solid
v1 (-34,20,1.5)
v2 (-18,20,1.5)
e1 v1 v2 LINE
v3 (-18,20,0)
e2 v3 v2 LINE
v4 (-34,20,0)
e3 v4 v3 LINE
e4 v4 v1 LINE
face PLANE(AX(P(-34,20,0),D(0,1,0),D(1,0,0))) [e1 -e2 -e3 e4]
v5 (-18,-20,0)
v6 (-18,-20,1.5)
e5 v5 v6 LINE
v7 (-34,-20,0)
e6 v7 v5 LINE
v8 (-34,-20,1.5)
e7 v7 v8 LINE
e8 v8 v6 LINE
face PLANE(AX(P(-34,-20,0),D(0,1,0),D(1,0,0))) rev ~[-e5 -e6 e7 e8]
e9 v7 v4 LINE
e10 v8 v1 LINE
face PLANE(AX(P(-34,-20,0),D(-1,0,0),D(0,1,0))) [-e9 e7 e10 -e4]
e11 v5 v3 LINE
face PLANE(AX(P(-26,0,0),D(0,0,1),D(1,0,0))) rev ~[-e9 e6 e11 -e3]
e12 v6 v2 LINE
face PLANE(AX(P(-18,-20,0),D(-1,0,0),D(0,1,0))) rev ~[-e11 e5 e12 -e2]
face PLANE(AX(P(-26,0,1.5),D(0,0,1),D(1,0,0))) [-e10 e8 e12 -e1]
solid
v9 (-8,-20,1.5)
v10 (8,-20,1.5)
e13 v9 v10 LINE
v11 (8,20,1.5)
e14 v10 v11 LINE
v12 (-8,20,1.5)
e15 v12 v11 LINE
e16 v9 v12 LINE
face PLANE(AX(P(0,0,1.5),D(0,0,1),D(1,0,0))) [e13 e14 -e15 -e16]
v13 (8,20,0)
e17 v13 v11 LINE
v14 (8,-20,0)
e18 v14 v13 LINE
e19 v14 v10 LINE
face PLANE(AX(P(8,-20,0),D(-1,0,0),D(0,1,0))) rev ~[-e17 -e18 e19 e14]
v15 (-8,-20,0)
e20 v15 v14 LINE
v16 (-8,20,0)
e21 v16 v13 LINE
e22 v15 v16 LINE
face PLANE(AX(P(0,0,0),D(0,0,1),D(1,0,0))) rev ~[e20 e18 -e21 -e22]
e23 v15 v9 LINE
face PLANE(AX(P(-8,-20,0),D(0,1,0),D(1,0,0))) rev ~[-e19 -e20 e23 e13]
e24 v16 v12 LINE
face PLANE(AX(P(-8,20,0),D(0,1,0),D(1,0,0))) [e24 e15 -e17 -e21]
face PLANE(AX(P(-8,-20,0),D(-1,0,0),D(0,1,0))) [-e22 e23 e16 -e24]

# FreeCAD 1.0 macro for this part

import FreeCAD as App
import Part
import Sketcher

doc = App.newDocument("Part")
params = doc.addObject("Spreadsheet::Sheet", "Params")
for row, (alias, value) in enumerate([
    ("sketch1_width", "16 mm"),
    ("sketch1_height", "40 mm"),
    ("pad1_length", "1.5 mm"),
    ("sketch2_width", "16 mm"),
    ("sketch2_height", "40 mm"),
    ("pad2_length", "1.5 mm"),
    ("sketch3_width", "16 mm"),
    ("sketch3_height", "40 mm"),
    ("pad3_length", "1.5 mm"),
], start=1):
    params.set(f"A{row}", alias)
    params.set(f"B{row}", "=" + value)
    params.setAlias(f"B{row}", alias)

body = doc.addObject("PartDesign::Body", "Body")

sketch1 = body.newObject("Sketcher::SketchObject", "Sketch")
sketch1.AttachmentSupport = (doc.getObject("XY_Plane"), [""])
sketch1.MapMode = "FlatFace"
sketch1.addGeometry([
    Part.LineSegment(App.Vector(-34, 20, 0), App.Vector(-34, -20, 0)),
    Part.LineSegment(App.Vector(-34, -20, 0), App.Vector(-18, -20, 0)),
    Part.LineSegment(App.Vector(-18, -20, 0), App.Vector(-18, 20, 0)),
    Part.LineSegment(App.Vector(-18, 20, 0), App.Vector(-34, 20, 0)),
], False)
sketch1.addConstraint([
    Sketcher.Constraint("Coincident", 0, 2, 1, 1),
    Sketcher.Constraint("Coincident", 1, 2, 2, 1),
    Sketcher.Constraint("Coincident", 2, 2, 3, 1),
    Sketcher.Constraint("Coincident", 3, 2, 0, 1),
    Sketcher.Constraint("Vertical", 0),
    Sketcher.Constraint("Horizontal", 1),
    Sketcher.Constraint("Vertical", 2),
    Sketcher.Constraint("Horizontal", 3),
    Sketcher.Constraint("DistanceX", 1, 1, 1, 2, 16.0),
    Sketcher.Constraint("DistanceY", 0, 2, 0, 1, 40.0),
    Sketcher.Constraint("DistanceX", 0, 2, -1, 1, 34.0),
    Sketcher.Constraint("DistanceY", 0, 2, -1, 1, 20.0),
])
sketch1.setExpression("Constraints[8]", "Params.sketch1_width")
sketch1.setExpression("Constraints[9]", "Params.sketch1_height")
pad1 = body.newObject("PartDesign::Pad", "Pad")
pad1.Profile = sketch1
pad1.setExpression("Length", "Params.pad1_length")
body2 = doc.addObject("PartDesign::Body", "Body001")

sketch2 = body2.newObject("Sketcher::SketchObject", "Sketch001")
sketch2.AttachmentSupport = (doc.getObject("XY_Plane001"), [""])
sketch2.MapMode = "FlatFace"
sketch2.addGeometry([
    Part.LineSegment(App.Vector(-8, 20, 0), App.Vector(-8, -20, 0)),
    Part.LineSegment(App.Vector(-8, -20, 0), App.Vector(8, -20, 0)),
    Part.LineSegment(App.Vector(8, -20, 0), App.Vector(8, 20, 0)),
    Part.LineSegment(App.Vector(8, 20, 0), App.Vector(-8, 20, 0)),
], False)
sketch2.addConstraint([
    Sketcher.Constraint("Coincident", 0, 2, 1, 1),
    Sketcher.Constraint("Coincident", 1, 2, 2, 1),
    Sketcher.Constraint("Coincident", 2, 2, 3, 1),
    Sketcher.Constraint("Coincident", 3, 2, 0, 1),
    Sketcher.Constraint("Vertical", 0),
    Sketcher.Constraint("Horizontal", 1),
    Sketcher.Constraint("Vertical", 2),
    Sketcher.Constraint("Horizontal", 3),
    Sketcher.Constraint("Symmetric", 0, 2, 2, 2, -1, 1),
    Sketcher.Constraint("DistanceX", 1, 1, 1, 2, 16.0),
    Sketcher.Constraint("DistanceY", 0, 2, 0, 1, 40.0),
])
sketch2.setExpression("Constraints[9]", "Params.sketch2_width")
sketch2.setExpression("Constraints[10]", "Params.sketch2_height")
pad2 = body2.newObject("PartDesign::Pad", "Pad001")
pad2.Profile = sketch2
pad2.setExpression("Length", "Params.pad2_length")
body3 = doc.addObject("PartDesign::Body", "Body002")

sketch3 = body3.newObject("Sketcher::SketchObject", "Sketch002")
sketch3.AttachmentSupport = (doc.getObject("XY_Plane002"), [""])
sketch3.MapMode = "FlatFace"
sketch3.addGeometry([
    Part.LineSegment(App.Vector(18, 20, 0), App.Vector(18, -20, 0)),
    Part.LineSegment(App.Vector(18, -20, 0), App.Vector(34, -20, 0)),
    Part.LineSegment(App.Vector(34, -20, 0), App.Vector(34, 20, 0)),
    Part.LineSegment(App.Vector(34, 20, 0), App.Vector(18, 20, 0)),
], False)
sketch3.addConstraint([
    Sketcher.Constraint("Coincident", 0, 2, 1, 1),
    Sketcher.Constraint("Coincident", 1, 2, 2, 1),
    Sketcher.Constraint("Coincident", 2, 2, 3, 1),
    Sketcher.Constraint("Coincident", 3, 2, 0, 1),
    Sketcher.Constraint("Vertical", 0),
    Sketcher.Constraint("Horizontal", 1),
    Sketcher.Constraint("Vertical", 2),
    Sketcher.Constraint("Horizontal", 3),
    Sketcher.Constraint("DistanceX", 1, 1, 1, 2, 16.0),
    Sketcher.Constraint("DistanceY", 0, 2, 0, 1, 40.0),
    Sketcher.Constraint("DistanceX", -1, 1, 0, 2, 18.0),
    Sketcher.Constraint("DistanceY", 0, 2, -1, 1, 20.0),
])
sketch3.setExpression("Constraints[8]", "Params.sketch3_width")
sketch3.setExpression("Constraints[9]", "Params.sketch3_height")
pad3 = body3.newObject("PartDesign::Pad", "Pad002")
pad3.Profile = sketch3
pad3.setExpression("Length", "Params.pad3_length")
body3.Visibility = False

doc.recompute()
